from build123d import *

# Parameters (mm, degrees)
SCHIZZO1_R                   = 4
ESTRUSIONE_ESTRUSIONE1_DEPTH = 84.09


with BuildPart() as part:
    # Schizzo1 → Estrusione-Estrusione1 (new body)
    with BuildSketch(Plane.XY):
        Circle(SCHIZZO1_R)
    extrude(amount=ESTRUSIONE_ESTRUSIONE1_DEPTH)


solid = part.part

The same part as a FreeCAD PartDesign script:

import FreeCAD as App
import Part
import Sketcher
from FreeCAD import Vector

doc = App.newDocument("Part")
body = doc.addObject("PartDesign::Body", "Body")

# Sketch on XY plane
sketch1 = body.newObject("Sketcher::SketchObject", "Sketch")
sketch1.AttachmentSupport = (doc.getObject("XY_Plane"), [""])
sketch1.MapMode = "FlatFace"
sketch1.addGeometry(Part.Circle(Vector(0, 0, 0), Vector(0, 0, 1), 4), False)
sketch1.addConstraint(Sketcher.Constraint("Coincident", 0, 3, -1, 1))
sketch1.addConstraint(Sketcher.Constraint("Diameter", 0, 8.0))
pad1 = body.newObject("PartDesign::Pad", "Pad")
pad1.Profile = sketch1
pad1.Length = 84.09

doc.recompute()
